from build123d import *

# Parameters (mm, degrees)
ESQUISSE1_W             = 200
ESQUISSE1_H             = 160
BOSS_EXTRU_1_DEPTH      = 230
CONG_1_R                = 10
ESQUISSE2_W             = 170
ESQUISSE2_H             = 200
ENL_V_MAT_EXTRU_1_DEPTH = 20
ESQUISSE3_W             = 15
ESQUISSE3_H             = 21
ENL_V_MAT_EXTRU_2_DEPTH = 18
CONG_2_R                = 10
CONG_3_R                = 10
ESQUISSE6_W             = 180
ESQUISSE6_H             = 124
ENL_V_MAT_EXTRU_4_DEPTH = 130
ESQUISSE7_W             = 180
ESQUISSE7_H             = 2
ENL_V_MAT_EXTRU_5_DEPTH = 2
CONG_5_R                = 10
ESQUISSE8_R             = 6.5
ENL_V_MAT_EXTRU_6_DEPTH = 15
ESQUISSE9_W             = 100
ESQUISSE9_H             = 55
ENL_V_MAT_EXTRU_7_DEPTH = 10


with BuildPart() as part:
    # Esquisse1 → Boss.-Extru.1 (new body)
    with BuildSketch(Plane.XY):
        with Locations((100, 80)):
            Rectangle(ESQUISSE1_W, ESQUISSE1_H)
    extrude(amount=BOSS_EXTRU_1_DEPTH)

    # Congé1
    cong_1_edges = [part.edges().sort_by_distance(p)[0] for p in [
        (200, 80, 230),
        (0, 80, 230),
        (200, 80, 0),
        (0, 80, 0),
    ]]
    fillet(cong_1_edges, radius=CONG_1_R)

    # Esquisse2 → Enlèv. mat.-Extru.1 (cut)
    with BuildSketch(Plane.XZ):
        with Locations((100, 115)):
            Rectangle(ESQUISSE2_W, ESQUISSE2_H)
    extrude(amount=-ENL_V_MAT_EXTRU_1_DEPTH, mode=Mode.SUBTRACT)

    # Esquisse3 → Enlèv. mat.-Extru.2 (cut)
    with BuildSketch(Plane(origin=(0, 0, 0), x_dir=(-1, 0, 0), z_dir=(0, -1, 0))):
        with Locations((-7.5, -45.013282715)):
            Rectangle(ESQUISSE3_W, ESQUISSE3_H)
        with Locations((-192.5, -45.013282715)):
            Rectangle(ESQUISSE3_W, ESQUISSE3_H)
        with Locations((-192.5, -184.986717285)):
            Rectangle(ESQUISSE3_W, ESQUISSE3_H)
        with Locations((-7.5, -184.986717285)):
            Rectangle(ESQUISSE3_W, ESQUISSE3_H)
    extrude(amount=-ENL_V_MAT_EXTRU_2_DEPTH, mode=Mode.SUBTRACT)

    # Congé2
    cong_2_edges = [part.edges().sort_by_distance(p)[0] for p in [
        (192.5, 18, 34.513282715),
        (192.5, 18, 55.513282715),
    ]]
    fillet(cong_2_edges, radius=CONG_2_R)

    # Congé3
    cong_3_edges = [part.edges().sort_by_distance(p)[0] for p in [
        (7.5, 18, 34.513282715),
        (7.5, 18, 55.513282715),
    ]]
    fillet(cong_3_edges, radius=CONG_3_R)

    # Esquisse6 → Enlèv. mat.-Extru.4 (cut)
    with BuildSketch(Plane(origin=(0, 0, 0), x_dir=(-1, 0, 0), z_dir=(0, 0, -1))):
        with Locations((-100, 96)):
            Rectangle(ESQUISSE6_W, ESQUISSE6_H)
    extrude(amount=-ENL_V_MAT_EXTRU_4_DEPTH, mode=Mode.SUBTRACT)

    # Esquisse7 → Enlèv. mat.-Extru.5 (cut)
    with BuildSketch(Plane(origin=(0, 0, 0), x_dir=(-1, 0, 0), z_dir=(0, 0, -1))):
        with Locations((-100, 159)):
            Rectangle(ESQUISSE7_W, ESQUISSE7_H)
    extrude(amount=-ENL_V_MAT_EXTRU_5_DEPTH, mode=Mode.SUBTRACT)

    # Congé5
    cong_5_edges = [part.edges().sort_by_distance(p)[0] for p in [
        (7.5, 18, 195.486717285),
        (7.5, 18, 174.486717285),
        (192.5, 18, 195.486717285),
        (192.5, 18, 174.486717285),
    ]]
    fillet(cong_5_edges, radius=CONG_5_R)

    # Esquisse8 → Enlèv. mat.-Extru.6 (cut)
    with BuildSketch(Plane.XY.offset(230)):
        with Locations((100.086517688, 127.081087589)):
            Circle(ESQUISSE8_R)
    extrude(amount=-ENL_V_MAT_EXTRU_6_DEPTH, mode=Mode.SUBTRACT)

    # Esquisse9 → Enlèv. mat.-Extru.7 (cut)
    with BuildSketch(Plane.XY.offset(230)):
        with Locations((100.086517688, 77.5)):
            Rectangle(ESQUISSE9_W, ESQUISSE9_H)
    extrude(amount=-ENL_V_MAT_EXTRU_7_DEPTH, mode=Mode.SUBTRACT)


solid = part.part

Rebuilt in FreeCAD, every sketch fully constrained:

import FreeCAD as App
import Part
import Sketcher
from FreeCAD import Vector
Q = App.Units.Quantity


def edges_at(feature, points):
    """Names of the edges that pass closest to the given points."""
    edges = feature.Shape.Edges
    near = lambda p: min(range(len(edges)), key=lambda i: edges[i].distToShape(Part.Vertex(*p))[0])
    return sorted({f"Edge{near(p) + 1}" for p in points})

doc = App.newDocument("Part")
body = doc.addObject("PartDesign::Body", "Body")

# Sketch on XY plane
sketch1 = body.newObject("Sketcher::SketchObject", "Sketch")
sketch1.AttachmentSupport = (doc.getObject("XY_Plane"), [""])
sketch1.MapMode = "FlatFace"
sketch1.addGeometry(Part.LineSegment(Vector(0, 160, 0), Vector(0, 0, 0)), False)
sketch1.addGeometry(Part.LineSegment(Vector(0, 0, 0), Vector(200, 0, 0)), False)
sketch1.addGeometry(Part.LineSegment(Vector(200, 0, 0), Vector(200, 160, 0)), False)
sketch1.addGeometry(Part.LineSegment(Vector(200, 160, 0), Vector(0, 160, 0)), False)
sketch1.addConstraint(Sketcher.Constraint("Coincident", 0, 2, 1, 1))
sketch1.addConstraint(Sketcher.Constraint("Coincident", 1, 2, 2, 1))
sketch1.addConstraint(Sketcher.Constraint("Coincident", 2, 2, 3, 1))
sketch1.addConstraint(Sketcher.Constraint("Coincident", 3, 2, 0, 1))
sketch1.addConstraint(Sketcher.Constraint("Vertical", 0))
sketch1.addConstraint(Sketcher.Constraint("Horizontal", 1))
sketch1.addConstraint(Sketcher.Constraint("Vertical", 2))
sketch1.addConstraint(Sketcher.Constraint("Horizontal", 3))
sketch1.addConstraint(Sketcher.Constraint("Coincident", 0, 2, -1, 1))
sketch1.addConstraint(Sketcher.Constraint("DistanceX", 1, 1, 1, 2, Q("200 mm")))
sketch1.addConstraint(Sketcher.Constraint("DistanceY", 0, 2, 0, 1, Q("160 mm")))
pad1 = body.newObject("PartDesign::Pad", "Pad")
pad1.Profile = sketch1
pad1.Length = 230
doc.recompute()

fillet = body.newObject("PartDesign::Fillet", "Fillet")
fillet.Base = (pad1, edges_at(pad1, [
    (200, 80, 230),
    (0, 80, 230),
    (200, 80, 0),
    (0, 80, 0),
]))
fillet.Radius = 10

# Sketch on XZ plane
sketch2 = body.newObject("Sketcher::SketchObject", "Sketch001")
sketch2.AttachmentSupport = (doc.getObject("XZ_Plane"), [""])
sketch2.MapMode = "FlatFace"
sketch2.addGeometry(Part.LineSegment(Vector(15, 215, 0), Vector(15, 15, 0)), False)
sketch2.addGeometry(Part.LineSegment(Vector(15, 15, 0), Vector(185, 15, 0)), False)
sketch2.addGeometry(Part.LineSegment(Vector(185, 15, 0), Vector(185, 215, 0)), False)
sketch2.addGeometry(Part.LineSegment(Vector(185, 215, 0), Vector(15, 215, 0)), False)
sketch2.addConstraint(Sketcher.Constraint("Coincident", 0, 2, 1, 1))
sketch2.addConstraint(Sketcher.Constraint("Coincident", 1, 2, 2, 1))
sketch2.addConstraint(Sketcher.Constraint("Coincident", 2, 2, 3, 1))
sketch2.addConstraint(Sketcher.Constraint("Coincident", 3, 2, 0, 1))
sketch2.addConstraint(Sketcher.Constraint("Vertical", 0))
sketch2.addConstraint(Sketcher.Constraint("Horizontal", 1))
sketch2.addConstraint(Sketcher.Constraint("Vertical", 2))
sketch2.addConstraint(Sketcher.Constraint("Horizontal", 3))
sketch2.addConstraint(Sketcher.Constraint("DistanceX", 1, 1, 1, 2, Q("170 mm")))
sketch2.addConstraint(Sketcher.Constraint("DistanceY", 0, 2, 0, 1, Q("200 mm")))
sketch2.addConstraint(Sketcher.Constraint("DistanceX", -1, 1, 0, 2, Q("15 mm")))
sketch2.addConstraint(Sketcher.Constraint("DistanceY", -1, 1, 0, 2, Q("15 mm")))
pocket1 = body.newObject("PartDesign::Pocket", "Pocket")
pocket1.Profile = sketch2
pocket1.Length = 20

# Sketch on XZ plane
sketch3 = body.newObject("Sketcher::SketchObject", "Sketch002")
sketch3.AttachmentSupport = (doc.getObject("XZ_Plane"), [""])
sketch3.MapMode = "FlatFace"
sketch3.addGeometry(Part.LineSegment(Vector(15, 34.513283, 0), Vector(15, 55.513283, 0)), False)
sketch3.addGeometry(Part.LineSegment(Vector(15, 55.513283, 0), Vector(0, 55.513283, 0)), False)
sketch3.addGeometry(Part.LineSegment(Vector(0, 55.513283, 0), Vector(0, 34.513283, 0)), False)
sketch3.addGeometry(Part.LineSegment(Vector(0, 34.513283, 0), Vector(15, 34.513283, 0)), False)
sketch3.addGeometry(Part.LineSegment(Vector(200, 34.513283, 0), Vector(200, 55.513283, 0)), False)
sketch3.addGeometry(Part.LineSegment(Vector(200, 55.513283, 0), Vector(185, 55.513283, 0)), False)
sketch3.addGeometry(Part.LineSegment(Vector(185, 55.513283, 0), Vector(185, 34.513283, 0)), False)
sketch3.addGeometry(Part.LineSegment(Vector(185, 34.513283, 0), Vector(200, 34.513283, 0)), False)
sketch3.addGeometry(Part.LineSegment(Vector(200, 174.486717, 0), Vector(200, 195.486717, 0)), False)
sketch3.addGeometry(Part.LineSegment(Vector(200, 195.486717, 0), Vector(185, 195.486717, 0)), False)
sketch3.addGeometry(Part.LineSegment(Vector(185, 195.486717, 0), Vector(185, 174.486717, 0)), False)
sketch3.addGeometry(Part.LineSegment(Vector(185, 174.486717, 0), Vector(200, 174.486717, 0)), False)
sketch3.addGeometry(Part.LineSegment(Vector(15, 174.486717, 0), Vector(15, 195.486717, 0)), False)
sketch3.addGeometry(Part.LineSegment(Vector(15, 195.486717, 0), Vector(0, 195.486717, 0)), False)
sketch3.addGeometry(Part.LineSegment(Vector(0, 195.486717, 0), Vector(0, 174.486717, 0)), False)
sketch3.addGeometry(Part.LineSegment(Vector(0, 174.486717, 0), Vector(15, 174.486717, 0)), False)
sketch3.addConstraint(Sketcher.Constraint("Coincident", 0, 2, 1, 1))
sketch3.addConstraint(Sketcher.Constraint("Coincident", 1, 2, 2, 1))
sketch3.addConstraint(Sketcher.Constraint("Coincident", 2, 2, 3, 1))
sketch3.addConstraint(Sketcher.Constraint("Coincident", 3, 2, 0, 1))
sketch3.addConstraint(Sketcher.Constraint("Coincident", 4, 2, 5, 1))
sketch3.addConstraint(Sketcher.Constraint("Coincident", 5, 2, 6, 1))
sketch3.addConstraint(Sketcher.Constraint("Coincident", 6, 2, 7, 1))
sketch3.addConstraint(Sketcher.Constraint("Coincident", 7, 2, 4, 1))
sketch3.addConstraint(Sketcher.Constraint("Coincident", 8, 2, 9, 1))
sketch3.addConstraint(Sketcher.Constraint("Coincident", 9, 2, 10, 1))
sketch3.addConstraint(Sketcher.Constraint("Coincident", 10, 2, 11, 1))
sketch3.addConstraint(Sketcher.Constraint("Coincident", 11, 2, 8, 1))
sketch3.addConstraint(Sketcher.Constraint("Coincident", 12, 2, 13, 1))
sketch3.addConstraint(Sketcher.Constraint("Coincident", 13, 2, 14, 1))
sketch3.addConstraint(Sketcher.Constraint("Coincident", 14, 2, 15, 1))
sketch3.addConstraint(Sketcher.Constraint("Coincident", 15, 2, 12, 1))
sketch3.addConstraint(Sketcher.Constraint("Vertical", 0))
sketch3.addConstraint(Sketcher.Constraint("Horizontal", 1))
sketch3.addConstraint(Sketcher.Constraint("Vertical", 2))
sketch3.addConstraint(Sketcher.Constraint("Horizontal", 3))
sketch3.addConstraint(Sketcher.Constraint("Vertical", 4))
sketch3.addConstraint(Sketcher.Constraint("Horizontal", 5))
sketch3.addConstraint(Sketcher.Constraint("Vertical", 6))
sketch3.addConstraint(Sketcher.Constraint("Horizontal", 7))
sketch3.addConstraint(Sketcher.Constraint("Vertical", 8))
sketch3.addConstraint(Sketcher.Constraint("Horizontal", 9))
sketch3.addConstraint(Sketcher.Constraint("Vertical", 10))
sketch3.addConstraint(Sketcher.Constraint("Horizontal", 11))
sketch3.addConstraint(Sketcher.Constraint("Vertical", 12))
sketch3.addConstraint(Sketcher.Constraint("Horizontal", 13))
sketch3.addConstraint(Sketcher.Constraint("Vertical", 14))
sketch3.addConstraint(Sketcher.Constraint("Horizontal", 15))
sketch3.addConstraint(Sketcher.Constraint("PointOnObject", 1, 2, -2))
sketch3.addConstraint(Sketcher.Constraint("PointOnObject", 13, 2, -2))
sketch3.addConstraint(Sketcher.Constraint("Horizontal", 1, 2, 4, 2))
sketch3.addConstraint(Sketcher.Constraint("Horizontal", 3, 2, 6, 2))
sketch3.addConstraint(Sketcher.Constraint("Horizontal", 9, 2, 12, 2))
sketch3.addConstraint(Sketcher.Constraint("Horizontal", 11, 2, 14, 2))
sketch3.addConstraint(Sketcher.Constraint("Vertical", 7, 2, 8, 2))
sketch3.addConstraint(Sketcher.Constraint("Vertical", 6, 2, 9, 2))
sketch3.addConstraint(Sketcher.Constraint("Vertical", 3, 2, 12, 2))
sketch3.addConstraint(Sketcher.Constraint("Equal", 3, 5))
sketch3.addConstraint(Sketcher.Constraint("Equal", 6, 8))
sketch3.addConstraint(Sketcher.Constraint("DistanceX", 1, 2, 1, 1, Q("15 mm")))
sketch3.addConstraint(Sketcher.Constraint("DistanceY", 0, 1, 0, 2, Q("21 mm")))
sketch3.addConstraint(Sketcher.Constraint("DistanceX", -1, 1, 4, 2, Q("200 mm")))
sketch3.addConstraint(Sketcher.Constraint("DistanceY", -1, 1, 0, 2, Q("55.513283 mm")))
sketch3.addConstraint(Sketcher.Constraint("DistanceY", -1, 1, 8, 2, Q("195.486717 mm")))
pocket2 = body.newObject("PartDesign::Pocket", "Pocket001")
pocket2.Profile = sketch3
pocket2.Length = 18
doc.recompute()

fillet2 = body.newObject("PartDesign::Fillet", "Fillet001")
fillet2.Base = (pocket2, edges_at(pocket2, [(192.5, 18, 34.513), (192.5, 18, 55.513)]))
fillet2.Radius = 10
doc.recompute()

fillet3 = body.newObject("PartDesign::Fillet", "Fillet002")
fillet3.Base = (fillet2, edges_at(fillet2, [(7.5, 18, 34.513), (7.5, 18, 55.513)]))
fillet3.Radius = 10

# Sketch on XY plane
sketch4 = body.newObject("Sketcher::SketchObject", "Sketch003")
sketch4.AttachmentSupport = (doc.getObject("XY_Plane"), [""])
sketch4.MapMode = "FlatFace"
sketch4.addGeometry(Part.LineSegment(Vector(190, 158, 0), Vector(190, 34, 0)), False)
sketch4.addGeometry(Part.LineSegment(Vector(190, 34, 0), Vector(10, 34, 0)), False)
sketch4.addGeometry(Part.LineSegment(Vector(10, 34, 0), Vector(10, 158, 0)), False)
sketch4.addGeometry(Part.LineSegment(Vector(10, 158, 0), Vector(190, 158, 0)), False)
sketch4.addConstraint(Sketcher.Constraint("Coincident", 0, 2, 1, 1))
sketch4.addConstraint(Sketcher.Constraint("Coincident", 1, 2, 2, 1))
sketch4.addConstraint(Sketcher.Constraint("Coincident", 2, 2, 3, 1))
sketch4.addConstraint(Sketcher.Constraint("Coincident", 3, 2, 0, 1))
sketch4.addConstraint(Sketcher.Constraint("Vertical", 0))
sketch4.addConstraint(Sketcher.Constraint("Horizontal", 1))
sketch4.addConstraint(Sketcher.Constraint("Vertical", 2))
sketch4.addConstraint(Sketcher.Constraint("Horizontal", 3))
sketch4.addConstraint(Sketcher.Constraint("DistanceX", 1, 2, 1, 1, Q("180 mm")))
sketch4.addConstraint(Sketcher.Constraint("DistanceY", 0, 2, 0, 1, Q("124 mm")))
sketch4.addConstraint(Sketcher.Constraint("DistanceX", -1, 1, 0, 2, Q("190 mm")))
sketch4.addConstraint(Sketcher.Constraint("DistanceY", -1, 1, 0, 2, Q("34 mm")))
pocket3 = body.newObject("PartDesign::Pocket", "Pocket002")
pocket3.Profile = sketch4
pocket3.Length = 130
pocket3.Reversed = True

# Sketch on XY plane
sketch5 = body.newObject("Sketcher::SketchObject", "Sketch004")
sketch5.AttachmentSupport = (doc.getObject("XY_Plane"), [""])
sketch5.MapMode = "FlatFace"
sketch5.addGeometry(Part.LineSegment(Vector(190, 160, 0), Vector(190, 158, 0)), False)
sketch5.addGeometry(Part.LineSegment(Vector(190, 158, 0), Vector(10, 158, 0)), False)
sketch5.addGeometry(Part.LineSegment(Vector(10, 158, 0), Vector(10, 160, 0)), False)
sketch5.addGeometry(Part.LineSegment(Vector(10, 160, 0), Vector(190, 160, 0)), False)
sketch5.addConstraint(Sketcher.Constraint("Coincident", 0, 2, 1, 1))
sketch5.addConstraint(Sketcher.Constraint("Coincident", 1, 2, 2, 1))
sketch5.addConstraint(Sketcher.Constraint("Coincident", 2, 2, 3, 1))
sketch5.addConstraint(Sketcher.Constraint("Coincident", 3, 2, 0, 1))
sketch5.addConstraint(Sketcher.Constraint("Vertical", 0))
sketch5.addConstraint(Sketcher.Constraint("Horizontal", 1))
sketch5.addConstraint(Sketcher.Constraint("Vertical", 2))
sketch5.addConstraint(Sketcher.Constraint("Horizontal", 3))
sketch5.addConstraint(Sketcher.Constraint("DistanceX", 1, 2, 1, 1, Q("180 mm")))
sketch5.addConstraint(Sketcher.Constraint("DistanceY", 0, 2, 0, 1, Q("2 mm")))
sketch5.addConstraint(Sketcher.Constraint("DistanceX", -1, 1, 0, 2, Q("190 mm")))
sketch5.addConstraint(Sketcher.Constraint("DistanceY", -1, 1, 0, 2, Q("158 mm")))
pocket4 = body.newObject("PartDesign::Pocket", "Pocket003")
pocket4.Profile = sketch5
pocket4.Length = 2
pocket4.Reversed = True
doc.recompute()

fillet4 = body.newObject("PartDesign::Fillet", "Fillet003")
fillet4.Base = (pocket4, edges_at(pocket4, [
    (7.5, 18, 195.487),
    (7.5, 18, 174.487),
    (192.5, 18, 195.487),
    (192.5, 18, 174.487),
]))
fillet4.Radius = 10

# Sketch on XY plane
sketch6 = body.newObject("Sketcher::SketchObject", "Sketch005")
sketch6.AttachmentSupport = (doc.getObject("XY_Plane"), [""])
sketch6.MapMode = "FlatFace"
sketch6.AttachmentOffset = App.Placement(Vector(0, 0, 230), App.Rotation())
sketch6.addGeometry(Part.Circle(Vector(100.086518, 127.081088, 0), Vector(0, 0, 1), 6.5), False)
sketch6.addConstraint(Sketcher.Constraint("Diameter", 0, Q("13 mm")))
sketch6.addConstraint(Sketcher.Constraint("DistanceX", -1, 1, 0, 3, Q("100.086518 mm")))
sketch6.addConstraint(Sketcher.Constraint("DistanceY", -1, 1, 0, 3, Q("127.081088 mm")))
pocket5 = body.newObject("PartDesign::Pocket", "Pocket004")
pocket5.Profile = sketch6
pocket5.Length = 15

# Sketch on XY plane
sketch7 = body.newObject("Sketcher::SketchObject", "Sketch006")
sketch7.AttachmentSupport = (doc.getObject("XY_Plane"), [""])
sketch7.MapMode = "FlatFace"
sketch7.AttachmentOffset = App.Placement(Vector(0, 0, 230), App.Rotation())
sketch7.addGeometry(Part.LineSegment(Vector(50.086518, 105, 0), Vector(50.086518, 50, 0)), False)
sketch7.addGeometry(Part.LineSegment(Vector(50.086518, 50, 0), Vector(150.086518, 50, 0)), False)
sketch7.addGeometry(Part.LineSegment(Vector(150.086518, 50, 0), Vector(150.086518, 105, 0)), False)
sketch7.addGeometry(Part.LineSegment(Vector(150.086518, 105, 0), Vector(50.086518, 105, 0)), False)
sketch7.addConstraint(Sketcher.Constraint("Coincident", 0, 2, 1, 1))
sketch7.addConstraint(Sketcher.Constraint("Coincident", 1, 2, 2, 1))
sketch7.addConstraint(Sketcher.Constraint("Coincident", 2, 2, 3, 1))
sketch7.addConstraint(Sketcher.Constraint("Coincident", 3, 2, 0, 1))
sketch7.addConstraint(Sketcher.Constraint("Vertical", 0))
sketch7.addConstraint(Sketcher.Constraint("Horizontal", 1))
sketch7.addConstraint(Sketcher.Constraint("Vertical", 2))
sketch7.addConstraint(Sketcher.Constraint("Horizontal", 3))
sketch7.addConstraint(Sketcher.Constraint("DistanceX", 1, 1, 1, 2, Q("100 mm")))
sketch7.addConstraint(Sketcher.Constraint("DistanceY", 0, 2, 0, 1, Q("55 mm")))
sketch7.addConstraint(Sketcher.Constraint("DistanceY", -1, 1, 0, 2, Q("50 mm")))
sketch7.addConstraint(Sketcher.Constraint("DistanceX", -1, 1, 0, 2, Q("50.086518 mm")))
pocket6 = body.newObject("PartDesign::Pocket", "Pocket005")
pocket6.Profile = sketch7
pocket6.Length = 10

doc.recompute()
